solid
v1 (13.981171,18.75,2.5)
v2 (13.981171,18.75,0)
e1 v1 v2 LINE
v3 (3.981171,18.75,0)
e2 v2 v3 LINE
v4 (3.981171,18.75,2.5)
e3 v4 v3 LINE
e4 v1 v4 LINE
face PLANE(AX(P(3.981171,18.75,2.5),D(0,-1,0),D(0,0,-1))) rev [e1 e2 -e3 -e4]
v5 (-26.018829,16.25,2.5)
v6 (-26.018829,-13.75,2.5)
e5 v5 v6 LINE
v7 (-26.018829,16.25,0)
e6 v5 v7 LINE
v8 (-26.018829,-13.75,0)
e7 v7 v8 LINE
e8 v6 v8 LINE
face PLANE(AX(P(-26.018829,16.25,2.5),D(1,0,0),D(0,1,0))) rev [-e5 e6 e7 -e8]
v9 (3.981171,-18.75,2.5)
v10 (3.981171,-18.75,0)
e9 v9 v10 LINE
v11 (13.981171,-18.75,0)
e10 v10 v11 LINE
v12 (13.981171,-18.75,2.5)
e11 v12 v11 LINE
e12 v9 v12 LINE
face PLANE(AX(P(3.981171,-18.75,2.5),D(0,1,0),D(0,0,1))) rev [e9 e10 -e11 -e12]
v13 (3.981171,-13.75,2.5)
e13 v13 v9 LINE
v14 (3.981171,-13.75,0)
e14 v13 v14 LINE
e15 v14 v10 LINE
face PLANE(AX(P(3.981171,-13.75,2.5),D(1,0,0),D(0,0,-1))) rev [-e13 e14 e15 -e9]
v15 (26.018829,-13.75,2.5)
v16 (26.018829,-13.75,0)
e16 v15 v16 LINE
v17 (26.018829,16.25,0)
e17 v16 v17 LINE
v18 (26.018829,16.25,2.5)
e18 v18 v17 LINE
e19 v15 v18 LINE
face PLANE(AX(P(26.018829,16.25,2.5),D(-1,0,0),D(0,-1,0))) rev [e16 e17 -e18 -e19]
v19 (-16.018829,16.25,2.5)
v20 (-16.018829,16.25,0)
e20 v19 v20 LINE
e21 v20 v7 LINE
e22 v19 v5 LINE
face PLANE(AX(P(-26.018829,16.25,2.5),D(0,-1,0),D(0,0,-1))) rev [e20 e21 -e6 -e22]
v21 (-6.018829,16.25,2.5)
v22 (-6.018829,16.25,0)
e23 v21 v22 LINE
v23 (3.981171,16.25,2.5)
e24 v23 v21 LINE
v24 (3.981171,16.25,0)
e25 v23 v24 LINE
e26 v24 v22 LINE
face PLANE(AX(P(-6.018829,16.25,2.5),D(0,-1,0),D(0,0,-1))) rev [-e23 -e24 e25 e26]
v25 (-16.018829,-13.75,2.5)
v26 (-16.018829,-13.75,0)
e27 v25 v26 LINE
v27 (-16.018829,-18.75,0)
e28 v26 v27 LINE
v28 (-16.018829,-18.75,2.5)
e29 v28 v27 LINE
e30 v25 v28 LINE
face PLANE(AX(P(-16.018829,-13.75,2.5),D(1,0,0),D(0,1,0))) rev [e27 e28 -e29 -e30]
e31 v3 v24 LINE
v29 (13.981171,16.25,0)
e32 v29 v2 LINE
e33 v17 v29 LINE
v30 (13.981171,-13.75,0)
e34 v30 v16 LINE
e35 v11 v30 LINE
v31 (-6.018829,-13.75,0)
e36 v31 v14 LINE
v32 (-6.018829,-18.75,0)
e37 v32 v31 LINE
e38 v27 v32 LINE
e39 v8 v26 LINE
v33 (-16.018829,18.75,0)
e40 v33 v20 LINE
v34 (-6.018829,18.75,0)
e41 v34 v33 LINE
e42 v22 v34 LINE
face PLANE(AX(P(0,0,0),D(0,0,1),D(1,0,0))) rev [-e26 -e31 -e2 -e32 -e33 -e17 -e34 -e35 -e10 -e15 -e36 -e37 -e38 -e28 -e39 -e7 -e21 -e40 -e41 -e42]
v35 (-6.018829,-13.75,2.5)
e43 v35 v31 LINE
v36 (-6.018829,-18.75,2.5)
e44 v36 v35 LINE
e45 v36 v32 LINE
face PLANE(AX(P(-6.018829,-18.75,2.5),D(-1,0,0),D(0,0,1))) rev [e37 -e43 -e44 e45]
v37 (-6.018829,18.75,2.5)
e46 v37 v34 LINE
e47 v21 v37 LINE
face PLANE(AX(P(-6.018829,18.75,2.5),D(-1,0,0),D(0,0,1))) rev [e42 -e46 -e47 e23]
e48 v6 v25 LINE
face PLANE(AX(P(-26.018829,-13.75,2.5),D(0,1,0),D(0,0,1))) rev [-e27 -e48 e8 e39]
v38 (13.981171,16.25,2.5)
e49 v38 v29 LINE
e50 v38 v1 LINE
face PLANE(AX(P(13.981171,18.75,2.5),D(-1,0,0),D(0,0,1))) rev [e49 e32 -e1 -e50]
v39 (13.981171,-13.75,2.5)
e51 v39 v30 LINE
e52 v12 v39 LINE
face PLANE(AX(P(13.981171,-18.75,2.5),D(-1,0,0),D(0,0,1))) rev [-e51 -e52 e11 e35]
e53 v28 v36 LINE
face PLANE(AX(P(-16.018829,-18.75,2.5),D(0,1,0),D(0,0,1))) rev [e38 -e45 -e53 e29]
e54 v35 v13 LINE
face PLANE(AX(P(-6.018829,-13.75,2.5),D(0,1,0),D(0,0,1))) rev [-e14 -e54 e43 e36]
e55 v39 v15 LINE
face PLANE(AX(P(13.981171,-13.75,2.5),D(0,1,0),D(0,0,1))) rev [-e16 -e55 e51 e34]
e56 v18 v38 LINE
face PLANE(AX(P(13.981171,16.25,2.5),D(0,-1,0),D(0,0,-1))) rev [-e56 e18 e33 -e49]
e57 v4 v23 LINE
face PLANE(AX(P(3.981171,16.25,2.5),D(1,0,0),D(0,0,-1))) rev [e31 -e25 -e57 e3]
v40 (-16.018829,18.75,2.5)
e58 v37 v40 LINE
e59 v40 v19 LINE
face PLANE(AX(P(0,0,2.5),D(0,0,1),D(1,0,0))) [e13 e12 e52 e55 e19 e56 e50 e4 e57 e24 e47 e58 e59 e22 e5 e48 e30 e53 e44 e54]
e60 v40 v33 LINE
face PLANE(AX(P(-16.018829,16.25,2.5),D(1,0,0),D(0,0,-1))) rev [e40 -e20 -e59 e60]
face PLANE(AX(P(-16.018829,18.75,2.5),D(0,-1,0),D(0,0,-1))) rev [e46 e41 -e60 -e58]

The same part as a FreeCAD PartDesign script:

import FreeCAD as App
import Part
import Sketcher

V = App.Vector


def add_polygon(sketch, points):
    """Adds a closed chain of lines whose ends are joined by coincident constraints."""
    first, n = sketch.GeometryCount, len(points)
    for a, b in zip(points, points[1:] + points[:1]):
        sketch.addGeometry(Part.LineSegment(App.Vector(*a, 0), App.Vector(*b, 0)), False)
    for i in range(n):
        sketch.addConstraint(Sketcher.Constraint("Coincident", first + i, 2, first + (i + 1) % n, 1))

doc = App.newDocument("Part")
body = doc.addObject("PartDesign::Body", "Body")

# Sketch on XY plane
sketch1 = body.newObject("Sketcher::SketchObject", "Sketch")
sketch1.AttachmentSupport = (doc.getObject("XY_Plane"), [""])
sketch1.MapMode = "FlatFace"
add_polygon(sketch1, [(-16, 16.2), (-26, 16.2), (-26, -13.8), (-16, -13.8), (-16, -18.8), (-6, -18.8), (-6, -13.8), (4, -13.8), (4, -18.8), (14, -18.8), (14, -13.8), (26, -13.8), (26, 16.2), (14, 16.2), (14, 18.8), (4, 18.8), (4, 16.2), (-6, 16.2), (-6, 18.8), (-16, 18.8)])  # lines 0-19
sketch1.addConstraint(Sketcher.Constraint("Horizontal", 0))
sketch1.addConstraint(Sketcher.Constraint("Vertical", 1))
sketch1.addConstraint(Sketcher.Constraint("Horizontal", 2))
sketch1.addConstraint(Sketcher.Constraint("Vertical", 3))
sketch1.addConstraint(Sketcher.Constraint("Horizontal", 4))
sketch1.addConstraint(Sketcher.Constraint("Vertical", 5))
sketch1.addConstraint(Sketcher.Constraint("Horizontal", 6))
sketch1.addConstraint(Sketcher.Constraint("Vertical", 7))
sketch1.addConstraint(Sketcher.Constraint("Horizontal", 8))
sketch1.addConstraint(Sketcher.Constraint("Vertical", 9))
sketch1.addConstraint(Sketcher.Constraint("Horizontal", 10))
sketch1.addConstraint(Sketcher.Constraint("Vertical", 11))
sketch1.addConstraint(Sketcher.Constraint("Horizontal", 12))
sketch1.addConstraint(Sketcher.Constraint("Vertical", 13))
sketch1.addConstraint(Sketcher.Constraint("Horizontal", 14))
sketch1.addConstraint(Sketcher.Constraint("Vertical", 15))
sketch1.addConstraint(Sketcher.Constraint("Horizontal", 16))
sketch1.addConstraint(Sketcher.Constraint("Vertical", 17))
sketch1.addConstraint(Sketcher.Constraint("Horizontal", 18))
sketch1.addConstraint(Sketcher.Constraint("Vertical", 19))
sketch1.addConstraint(Sketcher.Constraint("Symmetric", 1, 2, 10, 2, -2))
sketch1.addConstraint(Sketcher.Constraint("Symmetric", 8, 2, 13, 2, -1))
sketch1.addConstraint(Sketcher.Constraint("Symmetric", 4, 2, 17, 2, -1))
sketch1.addConstraint(Sketcher.Constraint("Horizontal", 2, 2, 5, 2))
sketch1.addConstraint(Sketcher.Constraint("Horizontal", 4, 2, 7, 2))
sketch1.addConstraint(Sketcher.Constraint("Horizontal", 0, 2, 11, 2))
sketch1.addConstraint(Sketcher.Constraint("Horizontal", 12, 2, 15, 2))
sketch1.addConstraint(Sketcher.Constraint("Vertical", 7, 2, 14, 2))
sketch1.addConstraint(Sketcher.Constraint("Vertical", 3, 2, 18, 2))
sketch1.addConstraint(Sketcher.Constraint("Equal", 2, 4))
sketch1.addConstraint(Sketcher.Constraint("Equal", 4, 6))
sketch1.addConstraint(Sketcher.Constraint("Equal", 6, 8))
sketch1.addConstraint(Sketcher.Constraint("DistanceX", 0, 2, 0, 1, 10.0))
sketch1.addConstraint(Sketcher.Constraint("DistanceY", 1, 2, 1, 1, 30.0))
sketch1.addConstraint(Sketcher.Constraint("DistanceY", 3, 2, 3, 1, 5.0))
sketch1.addConstraint(Sketcher.Constraint("DistanceY", 13, 1, 13, 2, 2.5))
sketch1.addConstraint(Sketcher.Constraint("DistanceX", 10, 1, 10, 2, 12.037659))
pad1 = body.newObject("PartDesign::Pad", "Pad")
pad1.Profile = sketch1
pad1.Length = 2.5

doc.recompute()
